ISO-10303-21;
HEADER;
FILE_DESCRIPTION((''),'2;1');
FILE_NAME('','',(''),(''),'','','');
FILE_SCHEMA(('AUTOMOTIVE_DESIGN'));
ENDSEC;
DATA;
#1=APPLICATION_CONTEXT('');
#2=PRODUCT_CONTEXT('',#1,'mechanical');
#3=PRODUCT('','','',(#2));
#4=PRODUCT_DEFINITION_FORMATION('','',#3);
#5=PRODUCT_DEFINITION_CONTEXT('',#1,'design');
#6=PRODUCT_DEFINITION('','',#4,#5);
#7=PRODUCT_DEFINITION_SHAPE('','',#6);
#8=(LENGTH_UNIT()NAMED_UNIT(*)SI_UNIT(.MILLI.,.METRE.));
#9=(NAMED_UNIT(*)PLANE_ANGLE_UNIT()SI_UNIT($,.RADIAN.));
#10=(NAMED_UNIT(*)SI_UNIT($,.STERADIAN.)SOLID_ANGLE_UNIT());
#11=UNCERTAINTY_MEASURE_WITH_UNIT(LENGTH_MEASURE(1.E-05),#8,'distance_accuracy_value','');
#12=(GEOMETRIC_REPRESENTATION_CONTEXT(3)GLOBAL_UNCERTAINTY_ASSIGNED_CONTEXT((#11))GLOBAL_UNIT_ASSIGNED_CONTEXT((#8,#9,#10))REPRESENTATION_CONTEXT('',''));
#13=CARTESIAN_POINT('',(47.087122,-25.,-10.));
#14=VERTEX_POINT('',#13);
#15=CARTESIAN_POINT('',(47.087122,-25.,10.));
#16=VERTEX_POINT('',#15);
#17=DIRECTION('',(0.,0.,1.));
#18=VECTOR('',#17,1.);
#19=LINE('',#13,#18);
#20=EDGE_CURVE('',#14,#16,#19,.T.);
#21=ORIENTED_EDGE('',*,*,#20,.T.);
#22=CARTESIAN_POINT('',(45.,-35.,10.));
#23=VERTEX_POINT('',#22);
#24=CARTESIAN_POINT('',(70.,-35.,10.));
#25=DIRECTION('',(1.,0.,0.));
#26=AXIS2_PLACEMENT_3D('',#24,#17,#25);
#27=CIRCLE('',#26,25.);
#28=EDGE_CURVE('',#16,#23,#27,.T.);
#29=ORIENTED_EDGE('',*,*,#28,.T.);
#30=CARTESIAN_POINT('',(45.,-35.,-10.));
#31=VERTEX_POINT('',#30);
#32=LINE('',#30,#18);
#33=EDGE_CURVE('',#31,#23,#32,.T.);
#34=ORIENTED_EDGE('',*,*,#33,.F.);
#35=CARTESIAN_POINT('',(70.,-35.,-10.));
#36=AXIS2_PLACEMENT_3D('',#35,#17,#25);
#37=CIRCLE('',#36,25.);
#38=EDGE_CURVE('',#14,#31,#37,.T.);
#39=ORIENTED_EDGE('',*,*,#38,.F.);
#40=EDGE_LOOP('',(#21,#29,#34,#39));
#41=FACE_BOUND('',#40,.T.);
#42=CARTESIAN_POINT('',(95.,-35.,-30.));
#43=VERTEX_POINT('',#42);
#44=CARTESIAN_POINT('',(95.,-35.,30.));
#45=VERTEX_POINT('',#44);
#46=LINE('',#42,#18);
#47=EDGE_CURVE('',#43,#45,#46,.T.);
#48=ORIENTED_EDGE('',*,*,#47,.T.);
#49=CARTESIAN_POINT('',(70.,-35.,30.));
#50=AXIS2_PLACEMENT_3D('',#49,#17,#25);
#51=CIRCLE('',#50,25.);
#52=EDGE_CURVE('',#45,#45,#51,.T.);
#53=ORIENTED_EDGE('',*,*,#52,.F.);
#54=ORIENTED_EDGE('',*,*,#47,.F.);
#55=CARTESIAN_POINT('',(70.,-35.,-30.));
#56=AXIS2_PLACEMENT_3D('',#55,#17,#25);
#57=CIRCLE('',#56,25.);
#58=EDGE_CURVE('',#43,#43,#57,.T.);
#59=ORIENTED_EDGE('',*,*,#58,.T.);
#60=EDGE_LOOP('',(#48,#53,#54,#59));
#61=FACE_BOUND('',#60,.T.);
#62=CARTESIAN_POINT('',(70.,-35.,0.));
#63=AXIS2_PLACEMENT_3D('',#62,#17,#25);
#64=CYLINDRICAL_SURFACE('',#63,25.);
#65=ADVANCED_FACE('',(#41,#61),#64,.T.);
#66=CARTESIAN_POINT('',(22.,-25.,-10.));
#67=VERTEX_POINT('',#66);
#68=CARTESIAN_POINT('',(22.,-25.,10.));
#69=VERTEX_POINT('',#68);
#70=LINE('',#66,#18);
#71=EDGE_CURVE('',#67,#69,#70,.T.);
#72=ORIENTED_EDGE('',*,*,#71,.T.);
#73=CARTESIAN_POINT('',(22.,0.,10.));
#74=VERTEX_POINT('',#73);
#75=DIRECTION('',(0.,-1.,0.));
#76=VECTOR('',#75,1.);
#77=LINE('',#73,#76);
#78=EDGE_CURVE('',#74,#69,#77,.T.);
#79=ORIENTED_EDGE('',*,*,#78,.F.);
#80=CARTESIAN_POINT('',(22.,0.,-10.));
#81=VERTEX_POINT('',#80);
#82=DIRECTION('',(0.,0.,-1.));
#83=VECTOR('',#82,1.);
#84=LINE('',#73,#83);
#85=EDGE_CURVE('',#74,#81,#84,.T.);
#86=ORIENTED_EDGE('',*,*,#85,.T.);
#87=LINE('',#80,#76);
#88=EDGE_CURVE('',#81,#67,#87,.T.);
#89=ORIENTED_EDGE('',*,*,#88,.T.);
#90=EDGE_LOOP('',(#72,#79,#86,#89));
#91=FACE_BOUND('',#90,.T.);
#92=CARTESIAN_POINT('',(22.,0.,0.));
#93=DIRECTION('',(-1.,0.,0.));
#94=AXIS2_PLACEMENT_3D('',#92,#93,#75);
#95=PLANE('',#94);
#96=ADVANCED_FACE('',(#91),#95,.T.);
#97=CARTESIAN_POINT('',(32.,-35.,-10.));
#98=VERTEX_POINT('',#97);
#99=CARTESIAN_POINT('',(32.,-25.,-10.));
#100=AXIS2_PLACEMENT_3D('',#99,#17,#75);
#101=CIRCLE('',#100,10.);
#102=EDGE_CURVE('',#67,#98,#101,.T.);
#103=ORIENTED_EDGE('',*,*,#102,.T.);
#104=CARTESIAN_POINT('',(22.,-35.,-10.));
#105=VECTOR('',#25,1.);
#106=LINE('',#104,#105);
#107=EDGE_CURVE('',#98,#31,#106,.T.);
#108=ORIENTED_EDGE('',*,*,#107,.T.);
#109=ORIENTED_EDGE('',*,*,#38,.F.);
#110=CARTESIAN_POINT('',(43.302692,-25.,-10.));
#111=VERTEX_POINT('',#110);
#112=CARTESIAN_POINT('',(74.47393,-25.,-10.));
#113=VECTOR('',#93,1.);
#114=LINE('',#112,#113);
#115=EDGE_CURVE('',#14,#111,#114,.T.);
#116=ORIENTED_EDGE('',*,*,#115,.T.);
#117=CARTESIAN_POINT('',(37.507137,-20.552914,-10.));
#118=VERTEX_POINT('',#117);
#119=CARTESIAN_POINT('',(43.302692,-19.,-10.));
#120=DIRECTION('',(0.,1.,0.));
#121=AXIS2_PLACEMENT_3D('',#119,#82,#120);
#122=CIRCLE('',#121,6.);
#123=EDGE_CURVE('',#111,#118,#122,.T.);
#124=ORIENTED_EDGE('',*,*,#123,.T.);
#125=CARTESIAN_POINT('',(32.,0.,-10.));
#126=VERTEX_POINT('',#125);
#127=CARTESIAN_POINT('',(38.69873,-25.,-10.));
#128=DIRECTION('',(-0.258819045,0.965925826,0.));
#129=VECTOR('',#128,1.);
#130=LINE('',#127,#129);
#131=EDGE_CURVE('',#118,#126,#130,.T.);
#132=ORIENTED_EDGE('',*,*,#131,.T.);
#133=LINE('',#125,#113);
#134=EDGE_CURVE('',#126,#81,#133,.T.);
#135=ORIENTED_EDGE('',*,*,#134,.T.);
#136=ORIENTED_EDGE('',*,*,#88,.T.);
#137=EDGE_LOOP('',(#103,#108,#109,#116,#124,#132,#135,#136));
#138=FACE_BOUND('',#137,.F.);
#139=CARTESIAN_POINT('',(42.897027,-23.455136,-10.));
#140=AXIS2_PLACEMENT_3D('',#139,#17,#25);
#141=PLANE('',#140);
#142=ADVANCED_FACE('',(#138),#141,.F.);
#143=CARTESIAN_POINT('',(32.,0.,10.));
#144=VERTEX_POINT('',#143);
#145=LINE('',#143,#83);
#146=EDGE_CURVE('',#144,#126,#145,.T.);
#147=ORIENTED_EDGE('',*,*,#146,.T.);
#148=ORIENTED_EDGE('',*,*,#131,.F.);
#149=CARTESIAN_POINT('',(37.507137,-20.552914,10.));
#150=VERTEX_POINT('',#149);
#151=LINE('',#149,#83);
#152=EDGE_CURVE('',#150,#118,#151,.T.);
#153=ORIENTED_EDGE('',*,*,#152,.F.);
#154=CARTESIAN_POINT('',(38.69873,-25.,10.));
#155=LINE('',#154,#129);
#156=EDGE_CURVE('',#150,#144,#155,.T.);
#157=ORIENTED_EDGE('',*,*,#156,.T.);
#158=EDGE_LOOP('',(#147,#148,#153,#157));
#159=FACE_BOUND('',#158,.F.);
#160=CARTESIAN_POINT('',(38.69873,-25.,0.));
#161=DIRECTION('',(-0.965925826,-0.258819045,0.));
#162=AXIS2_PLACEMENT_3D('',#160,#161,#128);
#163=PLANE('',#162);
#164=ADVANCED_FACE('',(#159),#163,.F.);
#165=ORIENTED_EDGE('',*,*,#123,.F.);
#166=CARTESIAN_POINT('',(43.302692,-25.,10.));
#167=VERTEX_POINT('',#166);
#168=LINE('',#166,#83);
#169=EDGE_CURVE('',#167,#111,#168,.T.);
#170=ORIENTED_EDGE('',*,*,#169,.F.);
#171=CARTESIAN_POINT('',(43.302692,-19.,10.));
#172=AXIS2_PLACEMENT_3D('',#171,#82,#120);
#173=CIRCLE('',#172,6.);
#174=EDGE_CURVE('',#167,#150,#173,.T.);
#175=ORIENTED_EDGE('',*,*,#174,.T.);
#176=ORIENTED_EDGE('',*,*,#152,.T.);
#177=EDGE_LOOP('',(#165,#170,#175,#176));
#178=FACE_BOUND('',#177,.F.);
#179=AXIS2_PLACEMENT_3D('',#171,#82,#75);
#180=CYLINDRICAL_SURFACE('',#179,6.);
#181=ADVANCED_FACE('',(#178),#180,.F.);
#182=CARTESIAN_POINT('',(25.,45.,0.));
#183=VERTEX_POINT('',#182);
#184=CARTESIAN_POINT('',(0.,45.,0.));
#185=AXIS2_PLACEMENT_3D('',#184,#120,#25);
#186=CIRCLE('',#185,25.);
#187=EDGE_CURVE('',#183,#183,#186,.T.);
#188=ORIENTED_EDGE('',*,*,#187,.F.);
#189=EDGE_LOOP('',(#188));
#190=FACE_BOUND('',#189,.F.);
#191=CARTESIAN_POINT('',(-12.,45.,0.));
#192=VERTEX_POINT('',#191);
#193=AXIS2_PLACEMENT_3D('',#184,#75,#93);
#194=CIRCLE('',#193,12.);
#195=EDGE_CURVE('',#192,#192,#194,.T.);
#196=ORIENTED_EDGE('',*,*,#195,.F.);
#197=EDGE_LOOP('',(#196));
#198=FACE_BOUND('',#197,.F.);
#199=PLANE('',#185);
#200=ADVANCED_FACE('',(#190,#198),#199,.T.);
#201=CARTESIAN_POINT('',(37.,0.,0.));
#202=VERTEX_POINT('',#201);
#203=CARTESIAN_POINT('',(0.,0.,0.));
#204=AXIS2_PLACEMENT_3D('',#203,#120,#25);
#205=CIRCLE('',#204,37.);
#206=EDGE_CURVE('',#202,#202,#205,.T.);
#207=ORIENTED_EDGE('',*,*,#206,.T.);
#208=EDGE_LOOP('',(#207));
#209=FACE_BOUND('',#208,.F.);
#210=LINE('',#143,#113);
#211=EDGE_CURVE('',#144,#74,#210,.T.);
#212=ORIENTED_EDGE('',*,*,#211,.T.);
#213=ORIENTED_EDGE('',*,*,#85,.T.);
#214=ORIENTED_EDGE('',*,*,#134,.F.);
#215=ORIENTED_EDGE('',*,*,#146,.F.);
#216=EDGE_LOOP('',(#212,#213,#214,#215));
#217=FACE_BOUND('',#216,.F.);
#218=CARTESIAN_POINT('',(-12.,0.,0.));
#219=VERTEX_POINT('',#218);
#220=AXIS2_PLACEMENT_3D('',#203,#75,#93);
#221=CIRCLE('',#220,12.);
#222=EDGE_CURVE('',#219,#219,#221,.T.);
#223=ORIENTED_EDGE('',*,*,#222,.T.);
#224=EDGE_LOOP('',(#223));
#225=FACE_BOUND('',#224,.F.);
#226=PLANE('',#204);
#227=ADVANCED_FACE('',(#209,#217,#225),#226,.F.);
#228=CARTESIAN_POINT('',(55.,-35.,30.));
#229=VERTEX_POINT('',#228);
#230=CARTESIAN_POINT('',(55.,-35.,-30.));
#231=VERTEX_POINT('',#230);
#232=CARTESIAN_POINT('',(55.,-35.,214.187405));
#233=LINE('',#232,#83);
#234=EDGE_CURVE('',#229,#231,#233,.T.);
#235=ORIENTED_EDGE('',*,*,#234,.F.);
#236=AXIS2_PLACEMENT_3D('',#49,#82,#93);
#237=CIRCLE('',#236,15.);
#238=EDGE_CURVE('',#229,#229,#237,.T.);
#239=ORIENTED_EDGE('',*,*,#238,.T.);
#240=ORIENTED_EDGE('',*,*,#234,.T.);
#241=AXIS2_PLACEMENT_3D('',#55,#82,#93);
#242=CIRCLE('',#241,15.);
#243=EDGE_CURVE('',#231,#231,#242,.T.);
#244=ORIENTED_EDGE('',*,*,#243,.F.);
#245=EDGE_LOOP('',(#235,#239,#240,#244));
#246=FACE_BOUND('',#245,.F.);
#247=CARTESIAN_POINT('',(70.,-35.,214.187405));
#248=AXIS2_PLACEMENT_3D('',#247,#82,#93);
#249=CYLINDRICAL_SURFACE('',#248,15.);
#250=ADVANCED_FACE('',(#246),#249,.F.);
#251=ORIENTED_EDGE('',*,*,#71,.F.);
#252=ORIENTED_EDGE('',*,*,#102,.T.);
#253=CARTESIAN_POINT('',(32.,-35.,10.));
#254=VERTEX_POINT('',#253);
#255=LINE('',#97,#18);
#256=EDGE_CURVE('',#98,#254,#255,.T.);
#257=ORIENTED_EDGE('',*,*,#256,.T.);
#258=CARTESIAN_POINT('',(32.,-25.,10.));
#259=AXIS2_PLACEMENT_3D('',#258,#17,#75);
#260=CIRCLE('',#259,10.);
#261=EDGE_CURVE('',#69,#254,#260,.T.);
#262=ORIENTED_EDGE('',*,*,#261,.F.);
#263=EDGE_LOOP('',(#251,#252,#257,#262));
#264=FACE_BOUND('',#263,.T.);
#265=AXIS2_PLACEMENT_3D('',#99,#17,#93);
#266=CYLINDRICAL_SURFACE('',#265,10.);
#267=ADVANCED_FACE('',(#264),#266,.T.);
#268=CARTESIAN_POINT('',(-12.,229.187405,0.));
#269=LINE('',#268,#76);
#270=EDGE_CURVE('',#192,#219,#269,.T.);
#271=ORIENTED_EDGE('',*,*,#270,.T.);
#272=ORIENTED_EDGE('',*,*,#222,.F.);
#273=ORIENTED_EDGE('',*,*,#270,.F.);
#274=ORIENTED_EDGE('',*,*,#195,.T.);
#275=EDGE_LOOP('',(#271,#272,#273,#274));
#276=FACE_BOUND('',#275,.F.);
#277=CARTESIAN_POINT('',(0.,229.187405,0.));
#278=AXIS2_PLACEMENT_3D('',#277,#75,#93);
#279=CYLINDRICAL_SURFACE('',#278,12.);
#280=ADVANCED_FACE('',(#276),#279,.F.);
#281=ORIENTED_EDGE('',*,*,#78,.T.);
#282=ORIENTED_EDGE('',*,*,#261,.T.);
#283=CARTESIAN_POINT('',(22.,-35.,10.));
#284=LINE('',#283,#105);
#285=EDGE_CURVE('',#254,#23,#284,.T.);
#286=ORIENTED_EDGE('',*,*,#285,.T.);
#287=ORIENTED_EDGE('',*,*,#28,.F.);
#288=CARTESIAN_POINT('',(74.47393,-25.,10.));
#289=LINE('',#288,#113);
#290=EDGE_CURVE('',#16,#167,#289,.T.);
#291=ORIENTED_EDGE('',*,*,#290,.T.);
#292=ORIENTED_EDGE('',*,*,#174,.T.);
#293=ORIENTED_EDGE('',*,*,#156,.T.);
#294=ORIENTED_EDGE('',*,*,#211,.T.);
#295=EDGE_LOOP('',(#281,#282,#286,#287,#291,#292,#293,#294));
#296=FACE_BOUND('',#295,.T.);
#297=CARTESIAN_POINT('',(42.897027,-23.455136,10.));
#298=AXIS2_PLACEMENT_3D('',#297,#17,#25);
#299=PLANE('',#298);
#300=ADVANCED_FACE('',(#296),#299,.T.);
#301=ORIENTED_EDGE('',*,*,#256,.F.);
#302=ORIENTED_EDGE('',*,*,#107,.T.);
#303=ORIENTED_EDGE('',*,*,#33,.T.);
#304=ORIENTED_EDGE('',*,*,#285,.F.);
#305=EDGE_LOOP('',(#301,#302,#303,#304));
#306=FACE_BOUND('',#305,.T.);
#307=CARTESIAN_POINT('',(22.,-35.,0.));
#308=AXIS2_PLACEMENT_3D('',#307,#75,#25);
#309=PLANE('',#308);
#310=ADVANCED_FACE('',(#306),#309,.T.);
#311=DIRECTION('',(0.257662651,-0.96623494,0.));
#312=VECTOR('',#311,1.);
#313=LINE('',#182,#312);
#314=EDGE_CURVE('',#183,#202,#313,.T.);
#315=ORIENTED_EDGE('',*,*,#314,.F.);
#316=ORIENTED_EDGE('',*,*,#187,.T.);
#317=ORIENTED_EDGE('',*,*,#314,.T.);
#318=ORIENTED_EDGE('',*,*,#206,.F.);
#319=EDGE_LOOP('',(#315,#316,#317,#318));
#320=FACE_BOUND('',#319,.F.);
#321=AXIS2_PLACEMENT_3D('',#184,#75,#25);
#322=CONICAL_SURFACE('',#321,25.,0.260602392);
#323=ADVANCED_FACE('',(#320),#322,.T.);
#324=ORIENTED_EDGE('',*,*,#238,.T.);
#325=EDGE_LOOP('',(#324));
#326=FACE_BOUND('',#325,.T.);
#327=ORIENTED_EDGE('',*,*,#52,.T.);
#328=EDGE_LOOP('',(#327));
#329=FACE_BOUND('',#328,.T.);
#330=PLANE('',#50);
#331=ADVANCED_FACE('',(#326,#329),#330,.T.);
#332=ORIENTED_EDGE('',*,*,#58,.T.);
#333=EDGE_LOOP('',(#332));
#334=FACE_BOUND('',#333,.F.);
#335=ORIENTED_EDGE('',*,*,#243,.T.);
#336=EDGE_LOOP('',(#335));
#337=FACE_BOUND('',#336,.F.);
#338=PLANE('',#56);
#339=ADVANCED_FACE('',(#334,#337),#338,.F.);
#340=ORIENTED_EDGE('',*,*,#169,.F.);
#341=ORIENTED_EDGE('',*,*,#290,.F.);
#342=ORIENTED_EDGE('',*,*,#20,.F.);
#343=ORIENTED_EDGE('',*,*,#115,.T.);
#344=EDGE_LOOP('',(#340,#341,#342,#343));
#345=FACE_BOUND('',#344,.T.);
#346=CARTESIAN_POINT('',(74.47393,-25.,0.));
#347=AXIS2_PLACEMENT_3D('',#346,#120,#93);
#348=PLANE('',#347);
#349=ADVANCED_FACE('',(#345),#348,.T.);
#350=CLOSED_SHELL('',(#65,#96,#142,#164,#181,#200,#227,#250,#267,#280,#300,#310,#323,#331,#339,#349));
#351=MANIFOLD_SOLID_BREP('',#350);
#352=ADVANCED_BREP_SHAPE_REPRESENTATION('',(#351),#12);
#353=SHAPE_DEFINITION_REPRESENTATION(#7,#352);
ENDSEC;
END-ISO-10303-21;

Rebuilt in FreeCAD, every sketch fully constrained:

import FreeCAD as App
import Part
import Sketcher
from FreeCAD import Vector
Q = App.Units.Quantity


def edges_at(feature, points):
    """Names of the edges that pass closest to the given points."""
    edges = feature.Shape.Edges
    near = lambda p: min(range(len(edges)), key=lambda i: edges[i].distToShape(Part.Vertex(*p))[0])
    return sorted({f"Edge{near(p) + 1}" for p in points})


def add_polygon(sketch, points):
    """Adds a closed chain of lines whose ends are joined by coincident constraints."""
    first, n = sketch.GeometryCount, len(points)
    for a, b in zip(points, points[1:] + points[:1]):
        sketch.addGeometry(Part.LineSegment(App.Vector(*a, 0), App.Vector(*b, 0)), False)
    for i in range(n):
        sketch.addConstraint(Sketcher.Constraint("Coincident", first + i, 2, first + (i + 1) % n, 1))

doc = App.newDocument("Part")
body = doc.addObject("PartDesign::Body", "Body")

# Sketch on XY plane
sketch1 = doc.addObject("Sketcher::SketchObject", "Sketch")
body.addObject(sketch1)
sketch1.AttachmentSupport = (doc.XY_Plane, [""])
sketch1.MapMode = "FlatFace"
add_polygon(sketch1, [(0, 45), (0, 0), (37, 0), (25, 45)])  # lines 0-3
sketch1.addConstraint([
    Sketcher.Constraint("Vertical", 0),
    Sketcher.Constraint("Horizontal", 1),
    Sketcher.Constraint("Horizontal", 3),
    Sketcher.Constraint("Coincident", 0, 2, -1, 1),
    Sketcher.Constraint("DistanceX", 1, 1, 1, 2, Q("37 mm")),
    Sketcher.Constraint("DistanceX", 3, 2, 3, 1, Q("25 mm")),
    Sketcher.Constraint("DistanceY", 0, 2, 0, 1, Q("45 mm")),
])
revolution = doc.addObject("PartDesign::Revolution", "Revolution")
body.addObject(revolution)
revolution.Profile = sketch1
revolution.ReferenceAxis = (sketch1, ["V_Axis"])
revolution.Angle = 360
body2 = doc.addObject("PartDesign::Body", "Body001")

# Sketch on XY plane
sketch2 = doc.addObject("Sketcher::SketchObject", "Sketch001")
body2.addObject(sketch2)
sketch2.AttachmentSupport = (doc.getObject("XY_Plane001"), [""])
sketch2.MapMode = "FlatFace"
sketch2.addGeometry(Part.Circle(Vector(70, -35, 0), Vector(0, 0, 1), 25), False)
sketch2.addConstraint([
    Sketcher.Constraint("Diameter", 0, Q("50 mm")),
    Sketcher.Constraint("DistanceX", -1, 1, 0, 3, Q("70 mm")),
    Sketcher.Constraint("DistanceY", 0, 3, -1, 1, Q("35 mm")),
])
pad1 = doc.addObject("PartDesign::Pad", "Pad")
body2.addObject(pad1)
pad1.Profile = sketch2
pad1.Type = "TwoLengths"
pad1.Length = 30
pad1.Length2 = 30
body.AllowCompound = True
doc.recompute()

boolean = doc.addObject("PartDesign::Boolean", "Boolean")
body.addObject(boolean)
boolean.Type = "Fuse"
boolean.addObjects([body2])

# Sketch on XY plane
sketch3 = doc.addObject("Sketcher::SketchObject", "Sketch002")
body.addObject(sketch3)
sketch3.AttachmentSupport = (doc.XY_Plane, [""])
sketch3.MapMode = "FlatFace"
add_polygon(sketch3, [(22, 0), (22, -35), (74.47393, -35), (74.47393, -25), (38.69873, -25), (32, 0)])  # lines 0-5
sketch3.addConstraint([
    Sketcher.Constraint("Vertical", 0),
    Sketcher.Constraint("Horizontal", 1),
    Sketcher.Constraint("Vertical", 2),
    Sketcher.Constraint("Horizontal", 3),
    Sketcher.Constraint("Horizontal", 5),
    Sketcher.Constraint("PointOnObject", 4, 2, -1),
    Sketcher.Constraint("Equal", 5, 2),
    Sketcher.Constraint("DistanceX", 5, 2, 5, 1, Q("10 mm")),
    Sketcher.Constraint("DistanceY", 0, 2, 0, 1, Q("35 mm")),
    Sketcher.Constraint("Angle", 4, Q("105 deg")),
    Sketcher.Constraint("DistanceX", -1, 1, 0, 2, Q("22 mm")),
    Sketcher.Constraint("DistanceX", 3, 2, 3, 1, Q("35.7752 mm")),
])
pad2 = doc.addObject("PartDesign::Pad", "Pad001")
body.addObject(pad2)
pad2.Profile = sketch3
pad2.Type = "TwoLengths"
pad2.Length = 10
pad2.Length2 = 10
doc.recompute()

fillet = doc.addObject("PartDesign::Fillet", "Fillet")
body.addObject(fillet)
fillet.Base = (pad2, edges_at(pad2, [(22, -35, 0)]))
fillet.Radius = 10
doc.recompute()

fillet2 = doc.addObject("PartDesign::Fillet", "Fillet001")
body.addObject(fillet2)
fillet2.Base = (fillet, edges_at(fillet, [(38.699, -25, 0)]))
fillet2.Radius = 6

# Sketch on XZ plane
sketch4 = doc.addObject("Sketcher::SketchObject", "Sketch003")
body.addObject(sketch4)
sketch4.AttachmentSupport = (doc.XZ_Plane, [""])
sketch4.MapMode = "FlatFace"
sketch4.AttachmentOffset = App.Placement(Vector(0, 0, -45), App.Rotation())
sketch4.addGeometry(Part.Circle(Vector(0, 0, 0), Vector(0, 0, 1), 12), False)
sketch4.addConstraint([
    Sketcher.Constraint("Coincident", 0, 3, -1, 1),
    Sketcher.Constraint("Diameter", 0, Q("24 mm")),
])
doc.recompute()
hole = doc.addObject("PartDesign::Hole", "Hole")
body.addObject(hole)
hole.Profile = sketch4
hole.ThreadType = "None"
hole.Diameter = 24
hole.DepthType = "ThroughAll"
hole.Reversed = True

# Sketch on XY plane
sketch5 = doc.addObject("Sketcher::SketchObject", "Sketch004")
body.addObject(sketch5)
sketch5.AttachmentSupport = (doc.XY_Plane, [""])
sketch5.MapMode = "FlatFace"
sketch5.AttachmentOffset = App.Placement(Vector(0, 0, 30), App.Rotation())
sketch5.addGeometry(Part.Circle(Vector(70, -35, 0), Vector(0, 0, 1), 15), False)
sketch5.addConstraint([
    Sketcher.Constraint("Diameter", 0, Q("30 mm")),
    Sketcher.Constraint("DistanceX", -1, 1, 0, 3, Q("70 mm")),
    Sketcher.Constraint("DistanceY", 0, 3, -1, 1, Q("35 mm")),
])
doc.recompute()
hole2 = doc.addObject("PartDesign::Hole", "Hole001")
body.addObject(hole2)
hole2.Profile = sketch5
hole2.ThreadType = "None"
hole2.Diameter = 30
hole2.DepthType = "ThroughAll"

doc.recompute()
